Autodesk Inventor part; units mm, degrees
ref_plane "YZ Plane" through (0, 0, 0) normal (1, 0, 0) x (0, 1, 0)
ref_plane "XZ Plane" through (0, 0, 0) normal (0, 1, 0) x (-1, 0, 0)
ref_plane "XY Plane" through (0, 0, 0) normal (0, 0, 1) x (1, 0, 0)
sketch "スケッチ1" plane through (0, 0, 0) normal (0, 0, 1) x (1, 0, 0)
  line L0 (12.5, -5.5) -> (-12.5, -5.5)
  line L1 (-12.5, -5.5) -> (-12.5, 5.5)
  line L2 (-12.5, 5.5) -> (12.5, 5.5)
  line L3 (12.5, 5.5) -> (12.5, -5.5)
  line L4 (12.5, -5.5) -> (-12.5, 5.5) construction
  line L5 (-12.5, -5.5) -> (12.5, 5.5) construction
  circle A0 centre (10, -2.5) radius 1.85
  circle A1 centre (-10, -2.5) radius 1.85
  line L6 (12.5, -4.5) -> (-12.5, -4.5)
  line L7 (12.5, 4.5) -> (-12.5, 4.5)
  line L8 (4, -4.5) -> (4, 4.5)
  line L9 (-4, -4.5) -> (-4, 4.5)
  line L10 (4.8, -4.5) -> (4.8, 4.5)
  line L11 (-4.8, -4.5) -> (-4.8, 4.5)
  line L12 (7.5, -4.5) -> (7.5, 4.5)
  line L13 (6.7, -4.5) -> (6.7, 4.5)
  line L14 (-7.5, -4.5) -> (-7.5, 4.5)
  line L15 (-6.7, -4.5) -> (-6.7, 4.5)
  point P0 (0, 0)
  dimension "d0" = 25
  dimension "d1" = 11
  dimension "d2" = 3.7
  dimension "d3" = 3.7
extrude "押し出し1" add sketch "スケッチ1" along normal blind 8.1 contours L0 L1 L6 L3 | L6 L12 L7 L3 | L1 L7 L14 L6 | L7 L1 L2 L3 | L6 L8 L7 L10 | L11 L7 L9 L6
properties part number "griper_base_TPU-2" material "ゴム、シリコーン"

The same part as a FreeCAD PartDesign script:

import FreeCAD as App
import Part
import Sketcher
from FreeCAD import Vector


def add_polygon(sketch, points):
    """Adds a closed chain of lines whose ends are joined by coincident constraints."""
    first, n = sketch.GeometryCount, len(points)
    for a, b in zip(points, points[1:] + points[:1]):
        sketch.addGeometry(Part.LineSegment(App.Vector(*a, 0), App.Vector(*b, 0)), False)
    for i in range(n):
        sketch.addConstraint(Sketcher.Constraint("Coincident", first + i, 2, first + (i + 1) % n, 1))

doc = App.newDocument("Part")
body = doc.addObject("PartDesign::Body", "Body")

sketch1 = body.newObject("Sketcher::SketchObject", "Sketch")
sketch1.AttachmentSupport = (doc.getObject("XY_Plane"), [""])
sketch1.MapMode = "FlatFace"
add_polygon(sketch1, [(-12.5, -5.5), (12.5, -5.5), (12.5, 5.5), (-12.5, 5.5)])
add_polygon(sketch1, [(-7.5, -4.5), (-7.5, 4.5), (-4.8, 4.5), (-4.8, -4.5)])
add_polygon(sketch1, [(4, -4.5), (-4, -4.5), (-4, 4.5), (4, 4.5)])
add_polygon(sketch1, [(4.8, -4.5), (4.8, 4.5), (7.5, 4.5), (7.5, -4.5)])
sketch1.addGeometry(Part.Circle(Vector(-10, -2.5, 0), Vector(0, 0, 1), 1.9), False)
sketch1.addGeometry(Part.Circle(Vector(10, -2.5, 0), Vector(0, 0, 1), 1.9), False)
sketch1.addConstraint(Sketcher.Constraint("Horizontal", 0))
sketch1.addConstraint(Sketcher.Constraint("Vertical", 1))
sketch1.addConstraint(Sketcher.Constraint("Horizontal", 2))
sketch1.addConstraint(Sketcher.Constraint("Vertical", 3))
sketch1.addConstraint(Sketcher.Constraint("Vertical", 4))
sketch1.addConstraint(Sketcher.Constraint("Horizontal", 5))
sketch1.addConstraint(Sketcher.Constraint("Vertical", 6))
sketch1.addConstraint(Sketcher.Constraint("Horizontal", 7))
sketch1.addConstraint(Sketcher.Constraint("Horizontal", 8))
sketch1.addConstraint(Sketcher.Constraint("Vertical", 9))
sketch1.addConstraint(Sketcher.Constraint("Horizontal", 10))
sketch1.addConstraint(Sketcher.Constraint("Vertical", 11))
sketch1.addConstraint(Sketcher.Constraint("Vertical", 12))
sketch1.addConstraint(Sketcher.Constraint("Horizontal", 13))
sketch1.addConstraint(Sketcher.Constraint("Vertical", 14))
sketch1.addConstraint(Sketcher.Constraint("Horizontal", 15))
sketch1.addConstraint(Sketcher.Constraint("Equal", 16, 17))
sketch1.addConstraint(Sketcher.Constraint("Symmetric", 0, 2, 2, 2, -1, 1))
sketch1.addConstraint(Sketcher.Constraint("Symmetric", 8, 2, 10, 2, -1, 1))
sketch1.addConstraint(Sketcher.Constraint("Symmetric", 6, 2, 12, 2, -1, 1))
sketch1.addConstraint(Sketcher.Constraint("Symmetric", 4, 2, 14, 2, -1, 1))
sketch1.addConstraint(Sketcher.Constraint("Symmetric", 16, 3, 17, 3, -2))
sketch1.addConstraint(Sketcher.Constraint("Horizontal", 7, 2, 8, 2))
sketch1.addConstraint(Sketcher.Constraint("Horizontal", 5, 2, 9, 2))
sketch1.addConstraint(Sketcher.Constraint("Diameter", 16, 3.7))
sketch1.addConstraint(Sketcher.Constraint("DistanceX", 0, 1, 0, 2, 25.0))
sketch1.addConstraint(Sketcher.Constraint("DistanceY", 1, 1, 1, 2, 11.0))
sketch1.addConstraint(Sketcher.Constraint("DistanceX", 8, 2, 8, 1, 8.0))
sketch1.addConstraint(Sketcher.Constraint("DistanceY", 4, 1, 4, 2, 9.0))
sketch1.addConstraint(Sketcher.Constraint("DistanceX", 5, 1, 5, 2, 2.7))
sketch1.addConstraint(Sketcher.Constraint("DistanceX", 16, 3, -1, 1, 10.0))
sketch1.addConstraint(Sketcher.Constraint("DistanceY", 0, 2, 17, 3, 3.0))
sketch1.addConstraint(Sketcher.Constraint("DistanceX", 2, 2, 4, 2, 5.0))
pad1 = body.newObject("PartDesign::Pad", "Pad")
pad1.Profile = sketch1
pad1.Length = 8.1

doc.recompute()
